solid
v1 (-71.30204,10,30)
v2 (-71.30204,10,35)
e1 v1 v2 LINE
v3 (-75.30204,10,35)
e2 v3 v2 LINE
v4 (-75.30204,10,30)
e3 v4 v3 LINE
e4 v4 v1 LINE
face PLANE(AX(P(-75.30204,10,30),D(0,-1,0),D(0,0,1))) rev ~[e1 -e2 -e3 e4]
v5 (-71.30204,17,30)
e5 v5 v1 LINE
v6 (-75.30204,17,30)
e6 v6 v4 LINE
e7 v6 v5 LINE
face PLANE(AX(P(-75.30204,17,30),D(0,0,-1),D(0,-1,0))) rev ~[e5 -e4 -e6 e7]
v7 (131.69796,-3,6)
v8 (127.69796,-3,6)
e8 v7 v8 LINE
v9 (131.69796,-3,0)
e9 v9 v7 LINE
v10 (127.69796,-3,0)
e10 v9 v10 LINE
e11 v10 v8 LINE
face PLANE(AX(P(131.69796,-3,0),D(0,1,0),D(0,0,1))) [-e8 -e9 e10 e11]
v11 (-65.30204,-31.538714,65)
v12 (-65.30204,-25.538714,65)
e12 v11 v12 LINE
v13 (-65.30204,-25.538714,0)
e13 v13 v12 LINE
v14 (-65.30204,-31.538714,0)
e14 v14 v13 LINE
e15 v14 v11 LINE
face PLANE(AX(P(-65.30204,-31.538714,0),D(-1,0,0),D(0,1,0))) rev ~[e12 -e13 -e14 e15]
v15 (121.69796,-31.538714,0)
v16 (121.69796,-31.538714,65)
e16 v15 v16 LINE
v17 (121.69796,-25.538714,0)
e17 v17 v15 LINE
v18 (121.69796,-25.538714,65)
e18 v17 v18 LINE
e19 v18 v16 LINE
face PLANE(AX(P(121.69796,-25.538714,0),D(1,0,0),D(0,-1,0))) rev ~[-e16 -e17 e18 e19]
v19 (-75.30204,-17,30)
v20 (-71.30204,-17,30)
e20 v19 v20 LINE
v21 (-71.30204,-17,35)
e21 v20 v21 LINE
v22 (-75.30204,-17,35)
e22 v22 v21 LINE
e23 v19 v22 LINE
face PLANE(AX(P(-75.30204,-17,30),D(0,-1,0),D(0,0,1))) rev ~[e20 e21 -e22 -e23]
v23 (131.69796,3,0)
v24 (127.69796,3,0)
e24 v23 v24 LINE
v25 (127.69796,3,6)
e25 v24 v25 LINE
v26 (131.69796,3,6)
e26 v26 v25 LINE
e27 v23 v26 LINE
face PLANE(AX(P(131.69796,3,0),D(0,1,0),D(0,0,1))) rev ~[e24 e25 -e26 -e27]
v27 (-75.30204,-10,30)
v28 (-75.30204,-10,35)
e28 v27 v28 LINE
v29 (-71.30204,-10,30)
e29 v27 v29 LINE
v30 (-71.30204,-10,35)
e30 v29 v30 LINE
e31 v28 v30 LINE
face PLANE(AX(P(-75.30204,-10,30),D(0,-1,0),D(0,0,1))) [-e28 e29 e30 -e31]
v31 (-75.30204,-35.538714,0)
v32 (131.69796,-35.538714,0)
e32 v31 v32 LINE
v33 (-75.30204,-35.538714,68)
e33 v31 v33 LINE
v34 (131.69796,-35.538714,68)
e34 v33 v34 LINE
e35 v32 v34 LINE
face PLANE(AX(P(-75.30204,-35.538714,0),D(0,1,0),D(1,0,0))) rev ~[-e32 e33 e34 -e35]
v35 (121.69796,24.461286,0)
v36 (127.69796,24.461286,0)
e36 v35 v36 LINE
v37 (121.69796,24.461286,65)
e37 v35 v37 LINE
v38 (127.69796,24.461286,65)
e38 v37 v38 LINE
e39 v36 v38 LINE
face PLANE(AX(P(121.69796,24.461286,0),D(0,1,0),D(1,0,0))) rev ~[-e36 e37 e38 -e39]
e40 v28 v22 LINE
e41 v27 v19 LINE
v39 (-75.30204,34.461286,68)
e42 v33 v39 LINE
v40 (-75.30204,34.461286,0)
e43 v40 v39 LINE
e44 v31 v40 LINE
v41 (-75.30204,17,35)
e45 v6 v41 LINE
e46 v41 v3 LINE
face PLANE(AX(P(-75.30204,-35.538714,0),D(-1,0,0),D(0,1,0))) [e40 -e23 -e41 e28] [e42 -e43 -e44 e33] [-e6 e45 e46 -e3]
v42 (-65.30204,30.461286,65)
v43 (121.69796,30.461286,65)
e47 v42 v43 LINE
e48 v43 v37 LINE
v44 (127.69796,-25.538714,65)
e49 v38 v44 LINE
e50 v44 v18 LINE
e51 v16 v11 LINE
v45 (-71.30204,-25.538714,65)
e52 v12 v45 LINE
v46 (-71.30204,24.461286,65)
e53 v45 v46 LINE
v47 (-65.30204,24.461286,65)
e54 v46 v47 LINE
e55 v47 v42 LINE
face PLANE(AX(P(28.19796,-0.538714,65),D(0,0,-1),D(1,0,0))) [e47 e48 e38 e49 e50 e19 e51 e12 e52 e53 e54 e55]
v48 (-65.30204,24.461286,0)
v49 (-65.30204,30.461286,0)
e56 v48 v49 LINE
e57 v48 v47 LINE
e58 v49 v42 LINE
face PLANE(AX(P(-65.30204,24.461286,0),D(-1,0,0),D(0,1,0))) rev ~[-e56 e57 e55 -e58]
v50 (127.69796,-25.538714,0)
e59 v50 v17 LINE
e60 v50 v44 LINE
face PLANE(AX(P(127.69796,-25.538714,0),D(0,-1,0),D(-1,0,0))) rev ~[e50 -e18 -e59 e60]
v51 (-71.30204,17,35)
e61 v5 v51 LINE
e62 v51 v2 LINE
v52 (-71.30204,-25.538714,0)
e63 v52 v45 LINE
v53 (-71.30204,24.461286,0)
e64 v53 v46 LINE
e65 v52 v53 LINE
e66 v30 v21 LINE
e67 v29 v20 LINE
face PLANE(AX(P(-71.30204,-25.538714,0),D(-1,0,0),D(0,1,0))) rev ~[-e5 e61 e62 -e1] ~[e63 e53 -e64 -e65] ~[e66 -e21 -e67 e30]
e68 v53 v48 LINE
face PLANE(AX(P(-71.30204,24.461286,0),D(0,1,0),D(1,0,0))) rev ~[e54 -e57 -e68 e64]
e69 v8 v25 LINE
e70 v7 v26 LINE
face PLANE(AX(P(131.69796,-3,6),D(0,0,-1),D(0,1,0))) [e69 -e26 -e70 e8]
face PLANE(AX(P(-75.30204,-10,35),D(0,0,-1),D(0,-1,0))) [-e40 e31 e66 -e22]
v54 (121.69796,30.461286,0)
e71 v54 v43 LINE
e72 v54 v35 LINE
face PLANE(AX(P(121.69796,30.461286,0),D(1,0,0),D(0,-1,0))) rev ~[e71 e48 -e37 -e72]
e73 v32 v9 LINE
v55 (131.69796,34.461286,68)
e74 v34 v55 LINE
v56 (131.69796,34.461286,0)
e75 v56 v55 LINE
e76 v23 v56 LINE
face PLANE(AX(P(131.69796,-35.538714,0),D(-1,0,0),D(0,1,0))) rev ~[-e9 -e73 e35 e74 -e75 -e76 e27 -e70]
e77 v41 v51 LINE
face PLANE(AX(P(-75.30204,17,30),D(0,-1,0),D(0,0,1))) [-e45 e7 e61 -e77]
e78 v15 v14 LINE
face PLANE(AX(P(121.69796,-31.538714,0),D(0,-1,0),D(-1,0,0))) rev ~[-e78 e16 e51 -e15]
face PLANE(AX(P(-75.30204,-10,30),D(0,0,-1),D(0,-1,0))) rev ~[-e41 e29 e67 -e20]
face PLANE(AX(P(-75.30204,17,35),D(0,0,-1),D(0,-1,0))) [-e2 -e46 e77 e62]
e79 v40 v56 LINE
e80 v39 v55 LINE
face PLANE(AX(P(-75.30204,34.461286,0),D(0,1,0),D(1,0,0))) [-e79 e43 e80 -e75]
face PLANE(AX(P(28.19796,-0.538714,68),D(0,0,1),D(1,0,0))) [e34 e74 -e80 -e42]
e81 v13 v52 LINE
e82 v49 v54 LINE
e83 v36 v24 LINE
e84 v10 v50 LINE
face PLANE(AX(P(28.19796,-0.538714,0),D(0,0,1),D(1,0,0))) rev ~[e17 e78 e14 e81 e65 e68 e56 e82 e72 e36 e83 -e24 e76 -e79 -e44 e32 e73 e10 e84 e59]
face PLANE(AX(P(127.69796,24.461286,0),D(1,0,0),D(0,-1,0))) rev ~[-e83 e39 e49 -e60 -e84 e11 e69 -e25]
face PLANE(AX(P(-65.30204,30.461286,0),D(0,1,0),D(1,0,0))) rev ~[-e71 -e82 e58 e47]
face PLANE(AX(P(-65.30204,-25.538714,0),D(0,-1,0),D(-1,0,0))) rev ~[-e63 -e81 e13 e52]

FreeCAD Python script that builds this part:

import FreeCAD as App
import Part
import Sketcher
Q = App.Units.Quantity

doc = App.newDocument("Part")
body = doc.addObject("PartDesign::Body", "Body")

sketch1 = body.newObject("Sketcher::SketchObject", "Sketch")
sketch1.AttachmentSupport = (doc.getObject("XY_Plane"), [""])
sketch1.MapMode = "FlatFace"
sketch1.addGeometry([
    Part.LineSegment(App.Vector(-75.30204, 34.461286, 0), App.Vector(-75.30204, -35.538714, 0)),
    Part.LineSegment(App.Vector(-75.30204, -35.538714, 0), App.Vector(131.69796, -35.538714, 0)),
    Part.LineSegment(App.Vector(131.69796, -35.538714, 0), App.Vector(131.69796, 34.461286, 0)),
    Part.LineSegment(App.Vector(131.69796, 34.461286, 0), App.Vector(-75.30204, 34.461286, 0)),
], False)
sketch1.addConstraint([
    Sketcher.Constraint("Coincident", 0, 2, 1, 1),
    Sketcher.Constraint("Coincident", 1, 2, 2, 1),
    Sketcher.Constraint("Coincident", 2, 2, 3, 1),
    Sketcher.Constraint("Coincident", 3, 2, 0, 1),
    Sketcher.Constraint("Vertical", 0),
    Sketcher.Constraint("Horizontal", 1),
    Sketcher.Constraint("Vertical", 2),
    Sketcher.Constraint("Horizontal", 3),
    Sketcher.Constraint("DistanceX", 1, 1, 1, 2, Q("207 mm")),
    Sketcher.Constraint("DistanceY", 0, 2, 0, 1, Q("70 mm")),
    Sketcher.Constraint("DistanceX", 0, 2, -1, 1, Q("75.30204 mm")),
    Sketcher.Constraint("DistanceY", 0, 2, -1, 1, Q("35.538714 mm")),
])
pad1 = body.newObject("PartDesign::Pad", "Pad")
pad1.Profile = sketch1
pad1.Length = 68

sketch2 = body.newObject("Sketcher::SketchObject", "Sketch001")
sketch2.AttachmentSupport = (doc.getObject("XY_Plane"), [""])
sketch2.MapMode = "FlatFace"
sketch2.addGeometry([
    Part.LineSegment(App.Vector(-65.30204, -31.538714, 0), App.Vector(-65.30204, -25.538714, 0)),
    Part.LineSegment(App.Vector(-65.30204, -25.538714, 0), App.Vector(-71.30204, -25.538714, 0)),
    Part.LineSegment(App.Vector(-71.30204, -25.538714, 0), App.Vector(-71.30204, 24.461286, 0)),
    Part.LineSegment(App.Vector(-71.30204, 24.461286, 0), App.Vector(-65.30204, 24.461286, 0)),
    Part.LineSegment(App.Vector(-65.30204, 24.461286, 0), App.Vector(-65.30204, 30.461286, 0)),
    Part.LineSegment(App.Vector(-65.30204, 30.461286, 0), App.Vector(121.69796, 30.461286, 0)),
    Part.LineSegment(App.Vector(121.69796, 30.461286, 0), App.Vector(121.69796, 24.461286, 0)),
    Part.LineSegment(App.Vector(121.69796, 24.461286, 0), App.Vector(127.69796, 24.461286, 0)),
    Part.LineSegment(App.Vector(127.69796, 24.461286, 0), App.Vector(127.69796, -25.538714, 0)),
    Part.LineSegment(App.Vector(127.69796, -25.538714, 0), App.Vector(121.69796, -25.538714, 0)),
    Part.LineSegment(App.Vector(121.69796, -25.538714, 0), App.Vector(121.69796, -31.538714, 0)),
    Part.LineSegment(App.Vector(121.69796, -31.538714, 0), App.Vector(-65.30204, -31.538714, 0)),
], False)
sketch2.addConstraint([
    Sketcher.Constraint("Coincident", 0, 2, 1, 1),
    Sketcher.Constraint("Coincident", 1, 2, 2, 1),
    Sketcher.Constraint("Coincident", 2, 2, 3, 1),
    Sketcher.Constraint("Coincident", 3, 2, 4, 1),
    Sketcher.Constraint("Coincident", 4, 2, 5, 1),
    Sketcher.Constraint("Coincident", 5, 2, 6, 1),
    Sketcher.Constraint("Coincident", 6, 2, 7, 1),
    Sketcher.Constraint("Coincident", 7, 2, 8, 1),
    Sketcher.Constraint("Coincident", 8, 2, 9, 1),
    Sketcher.Constraint("Coincident", 9, 2, 10, 1),
    Sketcher.Constraint("Coincident", 10, 2, 11, 1),
    Sketcher.Constraint("Coincident", 11, 2, 0, 1),
    Sketcher.Constraint("Vertical", 0),
    Sketcher.Constraint("Horizontal", 1),
    Sketcher.Constraint("Vertical", 2),
    Sketcher.Constraint("Horizontal", 3),
    Sketcher.Constraint("Vertical", 4),
    Sketcher.Constraint("Horizontal", 5),
    Sketcher.Constraint("Vertical", 6),
    Sketcher.Constraint("Horizontal", 7),
    Sketcher.Constraint("Vertical", 8),
    Sketcher.Constraint("Horizontal", 9),
    Sketcher.Constraint("Vertical", 10),
    Sketcher.Constraint("Horizontal", 11),
    Sketcher.Constraint("Horizontal", 3, 2, 6, 2),
    Sketcher.Constraint("Horizontal", 1, 2, 8, 2),
    Sketcher.Constraint("Vertical", 0, 2, 3, 2),
    Sketcher.Constraint("Vertical", 6, 2, 9, 2),
    Sketcher.Constraint("Equal", 3, 7),
    Sketcher.Constraint("Equal", 9, 0),
    Sketcher.Constraint("Equal", 0, 4),
    Sketcher.Constraint("DistanceX", 1, 2, 1, 1, Q("6 mm")),
    Sketcher.Constraint("DistanceX", 5, 1, 5, 2, Q("187 mm")),
    Sketcher.Constraint("DistanceY", 2, 1, 2, 2, Q("50 mm")),
    Sketcher.Constraint("DistanceX", 0, 2, -1, 1, Q("65.30204 mm")),
    Sketcher.Constraint("DistanceY", 0, 2, -1, 1, Q("25.538714 mm")),
])
pocket1 = body.newObject("PartDesign::Pocket", "Pocket")
pocket1.Profile = sketch2
pocket1.Length = 65
pocket1.Reversed = True

sketch3 = body.newObject("Sketcher::SketchObject", "Sketch002")
sketch3.AttachmentSupport = (doc.getObject("YZ_Plane"), [""])
sketch3.MapMode = "FlatFace"
sketch3.AttachmentOffset = App.Placement(App.Vector(0, 0, -75.30204), App.Rotation())
sketch3.addGeometry([
    Part.LineSegment(App.Vector(17, 35, 0), App.Vector(17, 30, 0)),
    Part.LineSegment(App.Vector(17, 30, 0), App.Vector(10, 30, 0)),
    Part.LineSegment(App.Vector(10, 30, 0), App.Vector(10, 35, 0)),
    Part.LineSegment(App.Vector(10, 35, 0), App.Vector(17, 35, 0)),
    Part.LineSegment(App.Vector(-10, 35, 0), App.Vector(-10, 30, 0)),
    Part.LineSegment(App.Vector(-10, 30, 0), App.Vector(-17, 30, 0)),
    Part.LineSegment(App.Vector(-17, 30, 0), App.Vector(-17, 35, 0)),
    Part.LineSegment(App.Vector(-17, 35, 0), App.Vector(-10, 35, 0)),
], False)
sketch3.addConstraint([
    Sketcher.Constraint("Coincident", 0, 2, 1, 1),
    Sketcher.Constraint("Coincident", 1, 2, 2, 1),
    Sketcher.Constraint("Coincident", 2, 2, 3, 1),
    Sketcher.Constraint("Coincident", 3, 2, 0, 1),
    Sketcher.Constraint("Coincident", 4, 2, 5, 1),
    Sketcher.Constraint("Coincident", 5, 2, 6, 1),
    Sketcher.Constraint("Coincident", 6, 2, 7, 1),
    Sketcher.Constraint("Coincident", 7, 2, 4, 1),
    Sketcher.Constraint("Vertical", 0),
    Sketcher.Constraint("Horizontal", 1),
    Sketcher.Constraint("Vertical", 2),
    Sketcher.Constraint("Horizontal", 3),
    Sketcher.Constraint("Vertical", 4),
    Sketcher.Constraint("Horizontal", 5),
    Sketcher.Constraint("Vertical", 6),
    Sketcher.Constraint("Horizontal", 7),
    Sketcher.Constraint("Symmetric", 1, 2, 4, 2, -2),
    Sketcher.Constraint("Symmetric", 3, 2, 6, 2, -2),
    Sketcher.Constraint("DistanceX", 1, 2, 1, 1, Q("7 mm")),
    Sketcher.Constraint("DistanceY", 0, 2, 0, 1, Q("5 mm")),
    Sketcher.Constraint("DistanceX", -1, 1, 0, 2, Q("17 mm")),
    Sketcher.Constraint("DistanceY", -1, 1, 0, 2, Q("30 mm")),
])
pocket2 = body.newObject("PartDesign::Pocket", "Pocket001")
pocket2.Profile = sketch3
pocket2.Length = 20
pocket2.Reversed = True

sketch4 = body.newObject("Sketcher::SketchObject", "Sketch003")
sketch4.AttachmentSupport = (doc.getObject("YZ_Plane"), [""])
sketch4.MapMode = "FlatFace"
sketch4.AttachmentOffset = App.Placement(App.Vector(0, 0, 131.69796), App.Rotation())
sketch4.addGeometry([
    Part.LineSegment(App.Vector(-3, 6, 0), App.Vector(-3, 0, 0)),
    Part.LineSegment(App.Vector(-3, 0, 0), App.Vector(3, 0, 0)),
    Part.LineSegment(App.Vector(3, 0, 0), App.Vector(3, 6, 0)),
    Part.LineSegment(App.Vector(3, 6, 0), App.Vector(-3, 6, 0)),
], False)
sketch4.addConstraint([
    Sketcher.Constraint("Coincident", 0, 2, 1, 1),
    Sketcher.Constraint("Coincident", 1, 2, 2, 1),
    Sketcher.Constraint("Coincident", 2, 2, 3, 1),
    Sketcher.Constraint("Coincident", 3, 2, 0, 1),
    Sketcher.Constraint("Vertical", 0),
    Sketcher.Constraint("Horizontal", 1),
    Sketcher.Constraint("Vertical", 2),
    Sketcher.Constraint("Horizontal", 3),
    Sketcher.Constraint("Symmetric", 0, 2, 1, 2, -1, 1),
    Sketcher.Constraint("Equal", 3, 0),
    Sketcher.Constraint("DistanceX", 1, 1, 1, 2, Q("6 mm")),
])
pocket3 = body.newObject("PartDesign::Pocket", "Pocket002")
pocket3.Profile = sketch4
pocket3.Length = 10

doc.recompute()
